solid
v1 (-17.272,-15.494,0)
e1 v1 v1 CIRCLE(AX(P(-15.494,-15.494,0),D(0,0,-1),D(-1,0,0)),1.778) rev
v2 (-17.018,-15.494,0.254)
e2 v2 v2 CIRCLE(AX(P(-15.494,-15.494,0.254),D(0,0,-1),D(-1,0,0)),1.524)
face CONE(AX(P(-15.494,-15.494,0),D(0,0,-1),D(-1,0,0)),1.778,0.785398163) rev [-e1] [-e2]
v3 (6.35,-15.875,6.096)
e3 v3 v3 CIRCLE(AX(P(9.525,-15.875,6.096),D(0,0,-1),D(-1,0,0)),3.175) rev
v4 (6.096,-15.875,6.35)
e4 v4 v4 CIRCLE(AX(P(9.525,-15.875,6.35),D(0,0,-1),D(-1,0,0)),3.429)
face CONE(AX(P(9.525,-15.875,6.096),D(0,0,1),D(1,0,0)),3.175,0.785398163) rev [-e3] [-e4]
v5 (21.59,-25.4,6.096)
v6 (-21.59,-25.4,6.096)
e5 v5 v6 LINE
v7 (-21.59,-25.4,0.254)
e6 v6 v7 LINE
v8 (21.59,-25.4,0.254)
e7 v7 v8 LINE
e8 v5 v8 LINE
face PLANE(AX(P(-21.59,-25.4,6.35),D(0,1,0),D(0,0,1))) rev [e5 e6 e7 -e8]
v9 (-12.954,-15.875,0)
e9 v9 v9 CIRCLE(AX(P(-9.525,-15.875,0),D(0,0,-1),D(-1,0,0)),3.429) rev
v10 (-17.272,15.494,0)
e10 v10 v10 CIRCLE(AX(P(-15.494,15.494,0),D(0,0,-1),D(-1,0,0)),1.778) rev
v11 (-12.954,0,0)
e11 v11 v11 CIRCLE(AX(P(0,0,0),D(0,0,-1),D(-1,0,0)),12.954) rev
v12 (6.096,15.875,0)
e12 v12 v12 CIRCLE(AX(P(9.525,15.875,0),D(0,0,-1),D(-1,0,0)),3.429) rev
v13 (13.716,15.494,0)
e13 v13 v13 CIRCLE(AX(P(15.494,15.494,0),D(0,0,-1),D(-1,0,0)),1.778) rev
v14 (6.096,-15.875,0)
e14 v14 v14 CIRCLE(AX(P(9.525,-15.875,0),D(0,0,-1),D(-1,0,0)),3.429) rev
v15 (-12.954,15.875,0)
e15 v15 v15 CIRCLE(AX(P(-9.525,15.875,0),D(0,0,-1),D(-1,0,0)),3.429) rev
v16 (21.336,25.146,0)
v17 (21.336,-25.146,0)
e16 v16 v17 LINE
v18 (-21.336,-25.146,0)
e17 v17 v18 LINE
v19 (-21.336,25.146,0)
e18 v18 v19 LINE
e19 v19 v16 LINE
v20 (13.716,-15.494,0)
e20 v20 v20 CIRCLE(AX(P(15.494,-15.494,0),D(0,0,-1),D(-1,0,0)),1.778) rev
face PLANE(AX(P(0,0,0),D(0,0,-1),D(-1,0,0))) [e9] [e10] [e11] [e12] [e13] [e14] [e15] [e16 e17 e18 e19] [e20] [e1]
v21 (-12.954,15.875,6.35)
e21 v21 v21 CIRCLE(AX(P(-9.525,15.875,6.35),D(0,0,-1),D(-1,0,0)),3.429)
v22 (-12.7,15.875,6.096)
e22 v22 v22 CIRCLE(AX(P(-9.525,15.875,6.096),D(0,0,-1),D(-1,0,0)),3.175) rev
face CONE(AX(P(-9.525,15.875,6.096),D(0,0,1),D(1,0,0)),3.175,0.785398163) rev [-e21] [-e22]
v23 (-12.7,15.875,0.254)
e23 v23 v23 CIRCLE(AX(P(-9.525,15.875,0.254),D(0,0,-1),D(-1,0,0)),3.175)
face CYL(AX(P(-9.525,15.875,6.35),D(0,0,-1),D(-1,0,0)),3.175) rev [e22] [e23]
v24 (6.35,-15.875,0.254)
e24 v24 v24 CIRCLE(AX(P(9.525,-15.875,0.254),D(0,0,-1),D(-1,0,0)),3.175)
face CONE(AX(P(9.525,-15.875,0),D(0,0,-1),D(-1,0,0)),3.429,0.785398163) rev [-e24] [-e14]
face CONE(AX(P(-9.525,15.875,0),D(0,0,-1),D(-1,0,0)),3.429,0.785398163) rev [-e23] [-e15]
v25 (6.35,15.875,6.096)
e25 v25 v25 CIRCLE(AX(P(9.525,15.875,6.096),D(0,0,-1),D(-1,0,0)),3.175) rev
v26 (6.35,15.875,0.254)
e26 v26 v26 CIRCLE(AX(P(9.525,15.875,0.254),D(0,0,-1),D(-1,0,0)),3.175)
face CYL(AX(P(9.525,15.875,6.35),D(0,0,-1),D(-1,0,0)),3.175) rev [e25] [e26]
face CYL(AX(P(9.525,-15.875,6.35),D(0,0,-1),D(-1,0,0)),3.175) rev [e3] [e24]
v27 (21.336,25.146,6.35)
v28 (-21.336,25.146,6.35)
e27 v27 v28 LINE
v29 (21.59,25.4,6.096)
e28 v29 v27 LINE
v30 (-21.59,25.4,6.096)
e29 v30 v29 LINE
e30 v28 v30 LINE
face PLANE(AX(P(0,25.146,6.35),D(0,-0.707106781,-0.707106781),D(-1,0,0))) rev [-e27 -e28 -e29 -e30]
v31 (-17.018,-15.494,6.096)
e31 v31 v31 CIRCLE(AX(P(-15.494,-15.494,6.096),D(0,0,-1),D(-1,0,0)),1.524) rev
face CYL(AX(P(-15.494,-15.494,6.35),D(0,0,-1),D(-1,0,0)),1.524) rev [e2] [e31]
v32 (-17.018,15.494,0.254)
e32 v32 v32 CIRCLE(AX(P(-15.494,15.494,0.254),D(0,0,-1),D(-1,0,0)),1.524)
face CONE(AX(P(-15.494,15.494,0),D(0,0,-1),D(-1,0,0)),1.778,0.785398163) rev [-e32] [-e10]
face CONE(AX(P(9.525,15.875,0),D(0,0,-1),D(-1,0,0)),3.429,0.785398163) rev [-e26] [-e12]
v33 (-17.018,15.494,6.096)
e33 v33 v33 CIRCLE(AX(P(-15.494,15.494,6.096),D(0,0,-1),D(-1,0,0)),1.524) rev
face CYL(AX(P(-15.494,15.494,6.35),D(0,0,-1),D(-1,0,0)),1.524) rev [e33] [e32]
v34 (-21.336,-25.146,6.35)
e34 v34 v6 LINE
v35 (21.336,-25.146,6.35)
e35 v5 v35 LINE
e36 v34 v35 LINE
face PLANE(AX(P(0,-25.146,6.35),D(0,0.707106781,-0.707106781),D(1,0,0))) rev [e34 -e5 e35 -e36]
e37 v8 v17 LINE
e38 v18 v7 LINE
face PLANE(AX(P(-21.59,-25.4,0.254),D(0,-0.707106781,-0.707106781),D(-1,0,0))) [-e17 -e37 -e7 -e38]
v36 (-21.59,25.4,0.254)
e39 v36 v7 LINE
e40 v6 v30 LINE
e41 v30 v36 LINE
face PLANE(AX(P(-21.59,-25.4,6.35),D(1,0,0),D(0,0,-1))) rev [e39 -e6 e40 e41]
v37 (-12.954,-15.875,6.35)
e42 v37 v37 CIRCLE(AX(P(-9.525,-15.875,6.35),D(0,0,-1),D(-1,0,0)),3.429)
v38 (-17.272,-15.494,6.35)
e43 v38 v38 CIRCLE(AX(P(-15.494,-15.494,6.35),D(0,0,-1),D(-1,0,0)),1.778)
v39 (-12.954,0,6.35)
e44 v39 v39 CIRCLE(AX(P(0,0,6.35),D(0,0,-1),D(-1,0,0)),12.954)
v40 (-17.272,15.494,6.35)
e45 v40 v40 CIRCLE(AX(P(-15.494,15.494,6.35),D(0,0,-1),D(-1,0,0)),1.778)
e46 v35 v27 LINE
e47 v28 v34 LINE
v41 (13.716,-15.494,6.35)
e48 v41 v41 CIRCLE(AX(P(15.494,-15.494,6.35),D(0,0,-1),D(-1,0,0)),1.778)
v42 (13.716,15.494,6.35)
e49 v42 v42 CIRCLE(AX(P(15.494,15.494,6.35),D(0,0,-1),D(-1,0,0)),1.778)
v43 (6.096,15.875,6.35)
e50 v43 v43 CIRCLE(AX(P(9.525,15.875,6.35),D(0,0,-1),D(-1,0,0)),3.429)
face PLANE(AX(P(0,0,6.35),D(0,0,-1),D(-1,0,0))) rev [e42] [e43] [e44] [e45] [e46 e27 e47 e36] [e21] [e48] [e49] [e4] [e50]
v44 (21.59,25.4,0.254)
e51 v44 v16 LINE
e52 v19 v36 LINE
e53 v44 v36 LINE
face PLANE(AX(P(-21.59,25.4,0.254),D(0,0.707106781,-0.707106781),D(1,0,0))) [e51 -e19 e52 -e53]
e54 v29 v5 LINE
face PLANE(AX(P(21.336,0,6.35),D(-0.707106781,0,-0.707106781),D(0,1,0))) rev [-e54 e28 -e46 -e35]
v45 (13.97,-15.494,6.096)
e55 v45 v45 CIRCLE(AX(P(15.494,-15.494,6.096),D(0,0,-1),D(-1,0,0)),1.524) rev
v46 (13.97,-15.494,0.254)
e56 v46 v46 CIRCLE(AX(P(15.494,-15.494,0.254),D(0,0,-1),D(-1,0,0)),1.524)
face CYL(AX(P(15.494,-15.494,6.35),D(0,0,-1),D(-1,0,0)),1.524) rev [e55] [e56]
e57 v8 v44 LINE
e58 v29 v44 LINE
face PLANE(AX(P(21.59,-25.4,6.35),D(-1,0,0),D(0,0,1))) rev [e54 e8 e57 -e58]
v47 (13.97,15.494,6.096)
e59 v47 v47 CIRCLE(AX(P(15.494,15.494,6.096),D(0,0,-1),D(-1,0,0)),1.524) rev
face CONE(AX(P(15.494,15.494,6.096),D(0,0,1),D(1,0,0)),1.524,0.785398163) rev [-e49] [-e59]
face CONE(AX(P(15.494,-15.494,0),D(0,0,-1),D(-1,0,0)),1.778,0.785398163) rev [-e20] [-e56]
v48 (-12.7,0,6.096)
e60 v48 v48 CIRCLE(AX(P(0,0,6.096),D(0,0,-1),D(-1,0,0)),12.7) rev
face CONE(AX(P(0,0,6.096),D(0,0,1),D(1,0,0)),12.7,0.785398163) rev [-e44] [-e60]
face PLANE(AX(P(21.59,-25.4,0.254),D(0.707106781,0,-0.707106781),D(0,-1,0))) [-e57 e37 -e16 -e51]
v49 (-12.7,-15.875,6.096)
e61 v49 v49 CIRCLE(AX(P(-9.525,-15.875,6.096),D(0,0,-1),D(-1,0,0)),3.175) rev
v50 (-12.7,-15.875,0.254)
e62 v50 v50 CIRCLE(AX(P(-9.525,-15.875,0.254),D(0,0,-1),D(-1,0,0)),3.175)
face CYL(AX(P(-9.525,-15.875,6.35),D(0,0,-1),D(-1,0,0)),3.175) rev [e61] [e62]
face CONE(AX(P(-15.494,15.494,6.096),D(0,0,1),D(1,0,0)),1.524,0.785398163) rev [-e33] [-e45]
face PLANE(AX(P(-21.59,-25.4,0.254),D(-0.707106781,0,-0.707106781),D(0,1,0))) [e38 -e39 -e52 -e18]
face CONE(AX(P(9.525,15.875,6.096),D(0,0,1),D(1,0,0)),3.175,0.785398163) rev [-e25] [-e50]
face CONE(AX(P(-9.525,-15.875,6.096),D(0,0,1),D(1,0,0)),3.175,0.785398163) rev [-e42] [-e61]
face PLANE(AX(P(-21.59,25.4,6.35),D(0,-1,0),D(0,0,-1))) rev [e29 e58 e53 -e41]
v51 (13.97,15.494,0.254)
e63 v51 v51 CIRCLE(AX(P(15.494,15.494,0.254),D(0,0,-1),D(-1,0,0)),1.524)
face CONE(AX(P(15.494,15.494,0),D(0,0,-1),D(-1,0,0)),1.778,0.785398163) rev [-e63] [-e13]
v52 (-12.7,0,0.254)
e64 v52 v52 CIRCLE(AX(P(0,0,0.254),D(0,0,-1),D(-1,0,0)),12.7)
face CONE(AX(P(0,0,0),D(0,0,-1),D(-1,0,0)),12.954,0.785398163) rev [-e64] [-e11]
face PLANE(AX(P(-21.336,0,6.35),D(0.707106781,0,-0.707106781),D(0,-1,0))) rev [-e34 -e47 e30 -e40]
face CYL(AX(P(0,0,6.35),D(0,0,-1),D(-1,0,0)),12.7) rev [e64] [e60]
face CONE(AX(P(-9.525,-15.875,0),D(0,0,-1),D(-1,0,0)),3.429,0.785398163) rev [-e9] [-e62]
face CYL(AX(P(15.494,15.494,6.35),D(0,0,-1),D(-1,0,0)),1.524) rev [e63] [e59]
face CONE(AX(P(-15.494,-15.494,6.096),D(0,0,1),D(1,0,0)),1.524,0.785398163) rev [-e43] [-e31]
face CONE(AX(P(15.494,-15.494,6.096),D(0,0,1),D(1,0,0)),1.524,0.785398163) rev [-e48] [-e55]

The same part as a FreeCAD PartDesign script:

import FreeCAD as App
import Part
import Sketcher

V = App.Vector
Q = App.Units.Quantity


def edges_at(feature, points):
    """Names of the edges that pass closest to the given points."""
    edges = feature.Shape.Edges
    near = lambda p: min(range(len(edges)), key=lambda i: edges[i].distToShape(Part.Vertex(*p))[0])
    return sorted({f"Edge{near(p) + 1}" for p in points})


def add_polygon(sketch, points):
    """Adds a closed chain of lines whose ends are joined by coincident constraints."""
    first, n = sketch.GeometryCount, len(points)
    for a, b in zip(points, points[1:] + points[:1]):
        sketch.addGeometry(Part.LineSegment(App.Vector(*a, 0), App.Vector(*b, 0)), False)
    for i in range(n):
        sketch.addConstraint(Sketcher.Constraint("Coincident", first + i, 2, first + (i + 1) % n, 1))

doc = App.newDocument("Part")
body = doc.addObject("PartDesign::Body", "Body")

# Sketch on XY plane
sketch1 = body.newObject("Sketcher::SketchObject", "Sketch")
sketch1.AttachmentSupport = (doc.getObject("XY_Plane"), [""])
sketch1.MapMode = "FlatFace"
add_polygon(sketch1, [(-21.6, 25.4), (-21.6, -25.4), (21.6, -25.4), (21.6, 25.4)])  # lines 0-3
sketch1.addGeometry(Part.Circle(V(-15.5, -15.5, 0), V(0, 0, 1), 1.5), False)  # 4
sketch1.addGeometry(Part.Circle(V(-9.5, -15.9, 0), V(0, 0, 1), 3.2), False)  # 5
sketch1.addGeometry(Part.Circle(V(9.5, -15.9, 0), V(0, 0, 1), 3.2), False)  # 6
sketch1.addGeometry(Part.Circle(V(15.5, -15.5, 0), V(0, 0, 1), 1.5), False)  # 7
sketch1.addGeometry(Part.Circle(V(-15.5, 15.5, 0), V(0, 0, 1), 1.5), False)  # 8
sketch1.addGeometry(Part.Circle(V(-9.5, 15.9, 0), V(0, 0, 1), 3.2), False)  # 9
sketch1.addGeometry(Part.Circle(V(0, 0, 0), V(0, 0, 1), 12.7), False)  # 10
sketch1.addGeometry(Part.Circle(V(9.5, 15.9, 0), V(0, 0, 1), 3.2), False)  # 11
sketch1.addGeometry(Part.Circle(V(15.5, 15.5, 0), V(0, 0, 1), 1.5), False)  # 12
sketch1.addConstraint([
    Sketcher.Constraint("Vertical", 0),
    Sketcher.Constraint("Horizontal", 1),
    Sketcher.Constraint("Vertical", 2),
    Sketcher.Constraint("Horizontal", 3),
    Sketcher.Constraint("Coincident", 10, 3, -1, 1),
    Sketcher.Constraint("Equal", 5, 6),
    Sketcher.Constraint("Equal", 4, 7),
    Sketcher.Constraint("Equal", 7, 8),
    Sketcher.Constraint("Equal", 6, 9),
    Sketcher.Constraint("Equal", 9, 11),
    Sketcher.Constraint("Equal", 8, 12),
    Sketcher.Constraint("Symmetric", 7, 3, 8, 3, -1, 1),
    Sketcher.Constraint("Symmetric", 6, 3, 9, 3, -1, 1),
    Sketcher.Constraint("Symmetric", 5, 3, 11, 3, -1, 1),
    Sketcher.Constraint("Symmetric", 4, 3, 12, 3, -1, 1),
    Sketcher.Constraint("Symmetric", 0, 2, 2, 2, -1, 1),
    Sketcher.Constraint("Symmetric", 5, 3, 6, 3, -2),
    Sketcher.Constraint("Symmetric", 4, 3, 7, 3, -2),
    Sketcher.Constraint("Diameter", 10, Q("1 in")),
    Sketcher.Constraint("Diameter", 4, Q("0.12 in")),
    Sketcher.Constraint("Diameter", 5, Q("0.25 in")),
    Sketcher.Constraint("DistanceY", 0, 2, 0, 1, Q("2 in")),
    Sketcher.Constraint("DistanceX", 1, 1, 1, 2, Q("1.7 in")),
    Sketcher.Constraint("DistanceX", 4, 3, -1, 1, Q("0.61 in")),
    Sketcher.Constraint("DistanceY", 4, 3, -1, 1, Q("0.61 in")),
    Sketcher.Constraint("DistanceX", 5, 3, 6, 3, Q("0.75 in")),
    Sketcher.Constraint("DistanceY", 5, 3, 9, 3, Q("1.25 in")),
])
pad1 = body.newObject("PartDesign::Pad", "Pad")
pad1.Profile = sketch1
pad1.Length = Q("0.25 in")
doc.recompute()

chamfer = body.newObject("PartDesign::Chamfer", "Chamfer")
chamfer.Base = (pad1, edges_at(pad1, [
    (-21.59, 0, 6.35),
    (-17.018, 15.494, 0),
    (-17.018, 15.494, 6.35),
    (0, -25.4, 6.35),
    (-12.7, 15.875, 0),
    (-12.7, 15.875, 6.35),
    (-17.018, -15.494, 0),
    (-17.018, -15.494, 6.35),
    (-12.7, -15.875, 0),
    (-12.7, -15.875, 6.35),
    (6.35, -15.875, 0),
    (6.35, -15.875, 6.35),
    (13.97, -15.494, 0),
    (13.97, -15.494, 6.35),
    (6.35, 15.875, 0),
    (6.35, 15.875, 6.35),
    (13.97, 15.494, 0),
    (13.97, 15.494, 6.35),
    (21.59, 0, 6.35),
    (-12.7, 0, 0),
    (-12.7, 0, 6.35),
    (0, -25.4, 0),
    (-21.59, 0, 0),
    (0, 25.4, 0),
    (21.59, 0, 0),
    (0, 25.4, 6.35),
]))
chamfer.Size = Q("0.01 in")

doc.recompute()
